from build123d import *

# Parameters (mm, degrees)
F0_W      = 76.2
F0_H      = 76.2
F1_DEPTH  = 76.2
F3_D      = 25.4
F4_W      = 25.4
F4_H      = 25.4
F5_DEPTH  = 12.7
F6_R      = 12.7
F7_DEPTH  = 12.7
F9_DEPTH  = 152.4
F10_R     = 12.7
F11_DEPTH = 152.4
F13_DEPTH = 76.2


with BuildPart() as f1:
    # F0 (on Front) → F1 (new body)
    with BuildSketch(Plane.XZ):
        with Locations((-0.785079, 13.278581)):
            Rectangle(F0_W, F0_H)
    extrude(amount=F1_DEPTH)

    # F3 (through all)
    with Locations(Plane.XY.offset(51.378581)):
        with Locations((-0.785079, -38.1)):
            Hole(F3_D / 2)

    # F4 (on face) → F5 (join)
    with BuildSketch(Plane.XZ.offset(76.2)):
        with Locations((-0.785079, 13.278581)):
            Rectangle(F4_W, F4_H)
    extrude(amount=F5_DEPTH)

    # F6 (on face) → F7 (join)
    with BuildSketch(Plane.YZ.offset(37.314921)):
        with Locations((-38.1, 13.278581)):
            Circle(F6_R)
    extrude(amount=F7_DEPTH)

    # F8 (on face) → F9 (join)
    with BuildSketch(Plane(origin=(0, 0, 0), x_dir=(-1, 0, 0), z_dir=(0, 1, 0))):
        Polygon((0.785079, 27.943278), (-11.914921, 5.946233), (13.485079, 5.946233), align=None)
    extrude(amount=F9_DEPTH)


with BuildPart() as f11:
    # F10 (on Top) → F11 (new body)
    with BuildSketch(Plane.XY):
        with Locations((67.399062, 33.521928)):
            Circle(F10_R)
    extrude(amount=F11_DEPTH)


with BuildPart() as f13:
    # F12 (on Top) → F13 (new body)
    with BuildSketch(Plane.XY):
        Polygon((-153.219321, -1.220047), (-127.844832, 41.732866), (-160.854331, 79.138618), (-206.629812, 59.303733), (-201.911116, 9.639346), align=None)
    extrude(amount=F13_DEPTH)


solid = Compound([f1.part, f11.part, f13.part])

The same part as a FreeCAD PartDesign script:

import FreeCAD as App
import Part
import Sketcher
Q = App.Units.Quantity


def add_polygon(sketch, points):
    """Adds a closed chain of lines whose ends are joined by coincident constraints."""
    first, n = sketch.GeometryCount, len(points)
    for a, b in zip(points, points[1:] + points[:1]):
        sketch.addGeometry(Part.LineSegment(App.Vector(*a, 0), App.Vector(*b, 0)), False)
    for i in range(n):
        sketch.addConstraint(Sketcher.Constraint("Coincident", first + i, 2, first + (i + 1) % n, 1))

doc = App.newDocument("Part")
body = doc.addObject("PartDesign::Body", "Body")

sketch1 = body.newObject("Sketcher::SketchObject", "Sketch")
sketch1.AttachmentSupport = (doc.getObject("XZ_Plane"), [""])
sketch1.MapMode = "FlatFace"
add_polygon(sketch1, [(-39, 51), (-39, -25), (37, -25), (37, 51)])
sketch1.addConstraint([
    Sketcher.Constraint("Vertical", 0),
    Sketcher.Constraint("Horizontal", 1),
    Sketcher.Constraint("Vertical", 2),
    Sketcher.Constraint("Horizontal", 3),
    Sketcher.Constraint("Equal", 3, 0),
    Sketcher.Constraint("DistanceX", 1, 1, 1, 2, Q("3 in")),
    Sketcher.Constraint("DistanceX", 0, 2, -1, 1, 38.885079),
    Sketcher.Constraint("DistanceY", 0, 2, -1, 1, 24.821419),
])
pad1 = body.newObject("PartDesign::Pad", "Pad")
pad1.Profile = sketch1
pad1.Length = Q("3 in")

sketch2 = body.newObject("Sketcher::SketchObject", "Sketch001")
sketch2.AttachmentSupport = (doc.getObject("XY_Plane"), [""])
sketch2.MapMode = "FlatFace"
sketch2.AttachmentOffset = App.Placement(App.Vector(0, 0, 51.378581), App.Rotation())
sketch2.addGeometry(Part.Circle(App.Vector(-1, -38, 0), App.Vector(0, 0, 1), 13), False)
sketch2.addConstraint([
    Sketcher.Constraint("Diameter", 0, Q("1 in")),
    Sketcher.Constraint("DistanceY", 0, 3, -1, 1, Q("1.5 in")),
    Sketcher.Constraint("DistanceX", 0, 3, -1, 1, 0.785079),
])
doc.recompute()
hole = body.newObject("PartDesign::Hole", "Hole")
hole.Profile = sketch2
hole.ThreadType = "None"
hole.Diameter = Q("1 in")
hole.DepthType = "ThroughAll"

sketch3 = body.newObject("Sketcher::SketchObject", "Sketch002")
sketch3.AttachmentSupport = (doc.getObject("XZ_Plane"), [""])
sketch3.MapMode = "FlatFace"
sketch3.AttachmentOffset = App.Placement(App.Vector(0, 0, 3 * 25.4), App.Rotation())
add_polygon(sketch3, [(-13, 26), (-13, 1), (12, 1), (12, 26)])
sketch3.addConstraint([
    Sketcher.Constraint("Vertical", 0),
    Sketcher.Constraint("Horizontal", 1),
    Sketcher.Constraint("Vertical", 2),
    Sketcher.Constraint("Horizontal", 3),
    Sketcher.Constraint("Equal", 3, 0),
    Sketcher.Constraint("DistanceX", 1, 1, 1, 2, Q("1 in")),
    Sketcher.Constraint("DistanceX", 0, 2, -1, 1, 13.485079),
    Sketcher.Constraint("DistanceY", -1, 1, 0, 2, 0.578581),
])
pad2 = body.newObject("PartDesign::Pad", "Pad001")
pad2.Profile = sketch3
pad2.Length = Q("0.5 in")

sketch4 = body.newObject("Sketcher::SketchObject", "Sketch003")
sketch4.AttachmentSupport = (doc.getObject("YZ_Plane"), [""])
sketch4.MapMode = "FlatFace"
sketch4.AttachmentOffset = App.Placement(App.Vector(0, 0, 37.314921), App.Rotation())
sketch4.addGeometry(Part.Circle(App.Vector(-38, 13, 0), App.Vector(0, 0, 1), 13), False)
sketch4.addConstraint([
    Sketcher.Constraint("Diameter", 0, Q("1 in")),
    Sketcher.Constraint("DistanceX", 0, 3, -1, 1, Q("1.5 in")),
    Sketcher.Constraint("DistanceY", -1, 1, 0, 3, 13.278581),
])
pad3 = body.newObject("PartDesign::Pad", "Pad002")
pad3.Profile = sketch4
pad3.Length = Q("0.5 in")

sketch5 = body.newObject("Sketcher::SketchObject", "Sketch004")
sketch5.AttachmentSupport = (doc.getObject("XZ_Plane"), [""])
sketch5.MapMode = "FlatFace"
add_polygon(sketch5, [(-1, 28), (12, 6), (-13, 6)])
sketch5.addConstraint([
    Sketcher.Constraint("Horizontal", 1),
    Sketcher.Constraint("Equal", 0, 2),
    Sketcher.Constraint("DistanceX", 1, 2, 1, 1, Q("1 in")),
    Sketcher.Constraint("Distance", 0, Q("1 in")),
    Sketcher.Constraint("DistanceX", -1, 1, 0, 2, 11.914921),
    Sketcher.Constraint("DistanceY", -1, 1, 0, 2, 5.946233),
])
pad4 = body.newObject("PartDesign::Pad", "Pad003")
pad4.Profile = sketch5
pad4.Length = Q("6 in")
pad4.Reversed = True
body2 = doc.addObject("PartDesign::Body", "Body001")

sketch6 = body2.newObject("Sketcher::SketchObject", "Sketch005")
sketch6.AttachmentSupport = (doc.getObject("XY_Plane001"), [""])
sketch6.MapMode = "FlatFace"
sketch6.addGeometry(Part.Circle(App.Vector(67, 34, 0), App.Vector(0, 0, 1), 13), False)
sketch6.addConstraint([
    Sketcher.Constraint("Diameter", 0, Q("1 in")),
    Sketcher.Constraint("DistanceX", -1, 1, 0, 3, 67.399062),
    Sketcher.Constraint("DistanceY", -1, 1, 0, 3, 33.521928),
])
pad5 = body2.newObject("PartDesign::Pad", "Pad004")
pad5.Profile = sketch6
pad5.Length = Q("6 in")
body3 = doc.addObject("PartDesign::Body", "Body002")

sketch7 = body3.newObject("Sketcher::SketchObject", "Sketch006")
sketch7.AttachmentSupport = (doc.getObject("XY_Plane002"), [""])
sketch7.MapMode = "FlatFace"
add_polygon(sketch7, [(-153, -1), (-128, 42), (-161, 79), (-207, 59), (-202, 10)])
sketch7.addConstraint([
    Sketcher.Constraint("Equal", 0, 1),
    Sketcher.Constraint("Equal", 1, 2),
    Sketcher.Constraint("Equal", 2, 3),
    Sketcher.Constraint("Equal", 3, 4),
    Sketcher.Constraint("DistanceX", 3, 2, 4, 2, Q("1.9169998 in")),
    Sketcher.Constraint("DistanceX", 1, 2, 0, 2, 33.009499),
    Sketcher.Constraint("Distance", 0, 49.888049),
    Sketcher.Constraint("DistanceX", 0, 2, -1, 1, 127.844832),
    Sketcher.Constraint("DistanceX", 2, 2, -1, 1, 206.629812),
    Sketcher.Constraint("DistanceY", -1, 1, 0, 2, 41.732866),
])
pad6 = body3.newObject("PartDesign::Pad", "Pad005")
pad6.Profile = sketch7
pad6.Length = Q("3 in")

doc.recompute()
